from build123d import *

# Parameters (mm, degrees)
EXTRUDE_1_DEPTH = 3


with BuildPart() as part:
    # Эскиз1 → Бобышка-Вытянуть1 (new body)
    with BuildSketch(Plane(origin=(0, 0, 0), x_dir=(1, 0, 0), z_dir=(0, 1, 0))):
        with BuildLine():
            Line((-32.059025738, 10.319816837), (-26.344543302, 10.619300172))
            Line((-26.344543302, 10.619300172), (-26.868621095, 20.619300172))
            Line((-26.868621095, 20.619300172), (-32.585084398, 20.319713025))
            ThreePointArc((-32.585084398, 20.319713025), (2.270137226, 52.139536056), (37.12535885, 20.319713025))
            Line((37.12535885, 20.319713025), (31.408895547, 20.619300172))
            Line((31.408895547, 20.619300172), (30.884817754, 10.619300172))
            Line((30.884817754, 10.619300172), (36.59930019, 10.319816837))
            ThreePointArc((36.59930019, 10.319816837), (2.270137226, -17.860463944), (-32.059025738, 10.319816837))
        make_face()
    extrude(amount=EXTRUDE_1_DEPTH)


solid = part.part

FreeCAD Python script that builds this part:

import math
import FreeCAD as App
import Part
import Sketcher

V = App.Vector
Q = App.Units.Quantity

doc = App.newDocument("Part")
body = doc.addObject("PartDesign::Body", "Body")

sketch1 = doc.addObject("Sketcher::SketchObject", "Sketch")
body.addObject(sketch1)
sketch1.AttachmentSupport = (doc.XZ_Plane, [""])
sketch1.MapMode = "FlatFace"
sketch1.addGeometry(Part.LineSegment(V(-26, -11, 0), V(-32, -10, 0)), False)
sketch1.addGeometry(Part.ArcOfCircle(Part.Circle(V(2, -17, 0), V(0, 0, 1), 35), math.radians(11), math.radians(169)), False)
sketch1.addGeometry(Part.LineSegment(V(37, -10, 0), V(31, -11, 0)), False)
sketch1.addGeometry(Part.LineSegment(V(31, -11, 0), V(31, -21, 0)), False)
sketch1.addGeometry(Part.LineSegment(V(31, -21, 0), V(37, -20, 0)), False)
sketch1.addGeometry(Part.ArcOfCircle(Part.Circle(V(2, -17, 0), V(0, 0, 1), 35), math.radians(-175), math.radians(-5)), False)
sketch1.addGeometry(Part.LineSegment(V(-33, -20, 0), V(-27, -21, 0)), False)
sketch1.addGeometry(Part.LineSegment(V(-27, -21, 0), V(-26, -11, 0)), False)
sketch1.addConstraint(Sketcher.Constraint("Coincident", 0, 2, 1, 2))
sketch1.addConstraint(Sketcher.Constraint("Coincident", 1, 1, 2, 1))
sketch1.addConstraint(Sketcher.Constraint("Coincident", 2, 2, 3, 1))
sketch1.addConstraint(Sketcher.Constraint("Coincident", 3, 2, 4, 1))
sketch1.addConstraint(Sketcher.Constraint("Coincident", 4, 2, 5, 2))
sketch1.addConstraint(Sketcher.Constraint("Coincident", 5, 1, 6, 1))
sketch1.addConstraint(Sketcher.Constraint("Coincident", 6, 2, 7, 1))
sketch1.addConstraint(Sketcher.Constraint("Coincident", 7, 2, 0, 1))
sketch1.addConstraint(Sketcher.Constraint("Coincident", 5, 3, 1, 3))
sketch1.addConstraint(Sketcher.Constraint("Equal", 1, 5))
sketch1.addConstraint(Sketcher.Constraint("Perpendicular", 2, 3))
sketch1.addConstraint(Sketcher.Constraint("Perpendicular", 3, 4))
sketch1.addConstraint(Sketcher.Constraint("Parallel", 0, 6))
sketch1.addConstraint(Sketcher.Constraint("Perpendicular", 6, 7))
sketch1.addConstraint(Sketcher.Constraint("Horizontal", 0, 2, 1, 1))
sketch1.addConstraint(Sketcher.Constraint("Horizontal", 4, 2, 5, 1))
sketch1.addConstraint(Sketcher.Constraint("Horizontal", 3, 2, 6, 2))
sketch1.addConstraint(Sketcher.Constraint("Horizontal", 2, 2, 7, 2))
sketch1.addConstraint(Sketcher.Constraint("Radius", 1, Q("35 mm")))
sketch1.addConstraint(Sketcher.Constraint("Angle", 0, Q("177 deg")))
sketch1.addConstraint(Sketcher.Constraint("DistanceY", 3, 2, 2, 2, Q("10 mm")))
sketch1.addConstraint(Sketcher.Constraint("DistanceX", -1, 1, 1, 1, Q("36.5993 mm")))
sketch1.addConstraint(Sketcher.Constraint("DistanceY", 2, 2, -1, 1, Q("10.6193 mm")))
sketch1.addConstraint(Sketcher.Constraint("Distance", 4, Q("5.724308 mm")))
sketch1.addConstraint(Sketcher.Constraint("DistanceX", -1, 1, 4, 2, Q("37.125359 mm")))
pad1 = doc.addObject("PartDesign::Pad", "Pad")
body.addObject(pad1)
pad1.Profile = sketch1
pad1.Length = 3
pad1.Reversed = True

doc.recompute()
